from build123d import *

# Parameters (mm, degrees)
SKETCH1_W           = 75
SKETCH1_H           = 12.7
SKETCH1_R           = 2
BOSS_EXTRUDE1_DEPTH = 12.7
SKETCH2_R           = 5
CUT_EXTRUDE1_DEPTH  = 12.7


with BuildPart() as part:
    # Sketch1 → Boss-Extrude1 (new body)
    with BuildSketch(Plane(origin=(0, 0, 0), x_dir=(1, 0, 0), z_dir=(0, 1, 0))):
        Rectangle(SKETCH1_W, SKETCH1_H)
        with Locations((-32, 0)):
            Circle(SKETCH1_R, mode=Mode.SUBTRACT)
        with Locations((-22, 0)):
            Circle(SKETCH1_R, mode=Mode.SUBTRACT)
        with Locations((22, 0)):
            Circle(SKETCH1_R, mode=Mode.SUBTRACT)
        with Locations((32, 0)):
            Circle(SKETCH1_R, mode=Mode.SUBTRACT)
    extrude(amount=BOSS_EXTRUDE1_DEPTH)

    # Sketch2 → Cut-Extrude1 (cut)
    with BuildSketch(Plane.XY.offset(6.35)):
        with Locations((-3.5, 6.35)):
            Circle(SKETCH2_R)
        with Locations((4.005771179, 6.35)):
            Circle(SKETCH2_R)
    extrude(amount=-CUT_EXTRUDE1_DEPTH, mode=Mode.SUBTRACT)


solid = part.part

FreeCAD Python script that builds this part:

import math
import FreeCAD as App
import Part
import Sketcher
from FreeCAD import Vector
Q = App.Units.Quantity

doc = App.newDocument("Part")
params = doc.addObject("Spreadsheet::Sheet", "Params")
for row, (alias, value) in enumerate([
    ("sketch1_diameter", "4 mm"),
    ("sketch1_width", "75 mm"),
    ("sketch1_height", "12.7 mm"),
    ("pad1_length", "12.7 mm"),
    ("sketch2_radius", "5 mm"),
    ("pocket1_length", "12.7 mm"),
], start=1):
    params.set(f"A{row}", alias)
    params.set(f"B{row}", "=" + value)
    params.setAlias(f"B{row}", alias)

body = doc.addObject("PartDesign::Body", "Body")

# Sketch on XZ plane
sketch1 = body.newObject("Sketcher::SketchObject", "Sketch")
sketch1.AttachmentSupport = (doc.getObject("XZ_Plane"), [""])
sketch1.MapMode = "FlatFace"
sketch1.addGeometry([
    Part.LineSegment(Vector(-37.5, -6.3, 0), Vector(-37.5, 6.3, 0)),  # 0
    Part.LineSegment(Vector(-37.5, 6.3, 0), Vector(37.5, 6.3, 0)),  # 1
    Part.LineSegment(Vector(37.5, 6.3, 0), Vector(37.5, -6.3, 0)),  # 2
    Part.LineSegment(Vector(37.5, -6.3, 0), Vector(-37.5, -6.3, 0)),  # 3
    Part.Circle(Vector(-32, 0, 0), Vector(0, 0, 1), 2),  # 4
    Part.Circle(Vector(-22, 0, 0), Vector(0, 0, 1), 2),  # 5
    Part.Circle(Vector(22, 0, 0), Vector(0, 0, 1), 2),  # 6
    Part.Circle(Vector(32, 0, 0), Vector(0, 0, 1), 2),  # 7
], False)
sketch1.addConstraint([
    Sketcher.Constraint("Coincident", 0, 2, 1, 1),
    Sketcher.Constraint("Coincident", 1, 2, 2, 1),
    Sketcher.Constraint("Coincident", 2, 2, 3, 1),
    Sketcher.Constraint("Coincident", 3, 2, 0, 1),
    Sketcher.Constraint("Vertical", 0),
    Sketcher.Constraint("Horizontal", 1),
    Sketcher.Constraint("Vertical", 2),
    Sketcher.Constraint("Horizontal", 3),
    Sketcher.Constraint("Equal", 4, 5),
    Sketcher.Constraint("Equal", 5, 6),
    Sketcher.Constraint("Equal", 6, 7),
    Sketcher.Constraint("Symmetric", 5, 3, 6, 3, -1, 1),
    Sketcher.Constraint("Symmetric", 4, 3, 7, 3, -1, 1),
    Sketcher.Constraint("Symmetric", 0, 2, 2, 2, -1, 1),
    Sketcher.Constraint("PointOnObject", 4, 3, -1),
    Sketcher.Constraint("PointOnObject", 5, 3, -1),
    Sketcher.Constraint("Diameter", 4, Q("4 mm")),
    Sketcher.Constraint("DistanceX", 1, 1, 1, 2, Q("75 mm")),
    Sketcher.Constraint("DistanceY", 0, 1, 0, 2, Q("12.7 mm")),
    Sketcher.Constraint("DistanceX", 4, 3, -1, 1, Q("32 mm")),
    Sketcher.Constraint("DistanceX", 5, 3, -1, 1, Q("22 mm")),
])
sketch1.setExpression("Constraints[16]", "Params.sketch1_diameter")
sketch1.setExpression("Constraints[17]", "Params.sketch1_width")
sketch1.setExpression("Constraints[18]", "Params.sketch1_height")
pad1 = body.newObject("PartDesign::Pad", "Pad")
pad1.Profile = sketch1
pad1.setExpression("Length", "Params.pad1_length")
pad1.Reversed = True

# Sketch on XY plane
sketch2 = body.newObject("Sketcher::SketchObject", "Sketch001")
sketch2.AttachmentSupport = (doc.getObject("XY_Plane"), [""])
sketch2.MapMode = "FlatFace"
sketch2.AttachmentOffset = App.Placement(Vector(0, 0, 6.35), App.Rotation())
sketch2.addGeometry([
    Part.ArcOfCircle(Part.Circle(Vector(4, 6, 0), Vector(0, 0, 1), 5), math.radians(-139), math.radians(139)),
    Part.ArcOfCircle(Part.Circle(Vector(-4, 6, 0), Vector(0, 0, 1), 5), math.radians(41), math.radians(319)),
], False)
sketch2.addConstraint([
    Sketcher.Constraint("Coincident", 0, 1, 1, 2),
    Sketcher.Constraint("Coincident", 1, 1, 0, 2),
    Sketcher.Constraint("Equal", 0, 1),
    Sketcher.Constraint("Horizontal", 0, 3, 1, 3),
    Sketcher.Constraint("Radius", 0, Q("5 mm")),
    Sketcher.Constraint("DistanceX", 1, 3, -1, 1, Q("3.5 mm")),
    Sketcher.Constraint("DistanceY", -1, 1, 0, 3, Q("6.35 mm")),
    Sketcher.Constraint("DistanceX", -1, 1, 0, 3, Q("4.005771 mm")),
])
sketch2.setExpression("Constraints[4]", "Params.sketch2_radius")
pocket1 = body.newObject("PartDesign::Pocket", "Pocket")
pocket1.Profile = sketch2
pocket1.setExpression("Length", "Params.pocket1_length")

doc.recompute()
